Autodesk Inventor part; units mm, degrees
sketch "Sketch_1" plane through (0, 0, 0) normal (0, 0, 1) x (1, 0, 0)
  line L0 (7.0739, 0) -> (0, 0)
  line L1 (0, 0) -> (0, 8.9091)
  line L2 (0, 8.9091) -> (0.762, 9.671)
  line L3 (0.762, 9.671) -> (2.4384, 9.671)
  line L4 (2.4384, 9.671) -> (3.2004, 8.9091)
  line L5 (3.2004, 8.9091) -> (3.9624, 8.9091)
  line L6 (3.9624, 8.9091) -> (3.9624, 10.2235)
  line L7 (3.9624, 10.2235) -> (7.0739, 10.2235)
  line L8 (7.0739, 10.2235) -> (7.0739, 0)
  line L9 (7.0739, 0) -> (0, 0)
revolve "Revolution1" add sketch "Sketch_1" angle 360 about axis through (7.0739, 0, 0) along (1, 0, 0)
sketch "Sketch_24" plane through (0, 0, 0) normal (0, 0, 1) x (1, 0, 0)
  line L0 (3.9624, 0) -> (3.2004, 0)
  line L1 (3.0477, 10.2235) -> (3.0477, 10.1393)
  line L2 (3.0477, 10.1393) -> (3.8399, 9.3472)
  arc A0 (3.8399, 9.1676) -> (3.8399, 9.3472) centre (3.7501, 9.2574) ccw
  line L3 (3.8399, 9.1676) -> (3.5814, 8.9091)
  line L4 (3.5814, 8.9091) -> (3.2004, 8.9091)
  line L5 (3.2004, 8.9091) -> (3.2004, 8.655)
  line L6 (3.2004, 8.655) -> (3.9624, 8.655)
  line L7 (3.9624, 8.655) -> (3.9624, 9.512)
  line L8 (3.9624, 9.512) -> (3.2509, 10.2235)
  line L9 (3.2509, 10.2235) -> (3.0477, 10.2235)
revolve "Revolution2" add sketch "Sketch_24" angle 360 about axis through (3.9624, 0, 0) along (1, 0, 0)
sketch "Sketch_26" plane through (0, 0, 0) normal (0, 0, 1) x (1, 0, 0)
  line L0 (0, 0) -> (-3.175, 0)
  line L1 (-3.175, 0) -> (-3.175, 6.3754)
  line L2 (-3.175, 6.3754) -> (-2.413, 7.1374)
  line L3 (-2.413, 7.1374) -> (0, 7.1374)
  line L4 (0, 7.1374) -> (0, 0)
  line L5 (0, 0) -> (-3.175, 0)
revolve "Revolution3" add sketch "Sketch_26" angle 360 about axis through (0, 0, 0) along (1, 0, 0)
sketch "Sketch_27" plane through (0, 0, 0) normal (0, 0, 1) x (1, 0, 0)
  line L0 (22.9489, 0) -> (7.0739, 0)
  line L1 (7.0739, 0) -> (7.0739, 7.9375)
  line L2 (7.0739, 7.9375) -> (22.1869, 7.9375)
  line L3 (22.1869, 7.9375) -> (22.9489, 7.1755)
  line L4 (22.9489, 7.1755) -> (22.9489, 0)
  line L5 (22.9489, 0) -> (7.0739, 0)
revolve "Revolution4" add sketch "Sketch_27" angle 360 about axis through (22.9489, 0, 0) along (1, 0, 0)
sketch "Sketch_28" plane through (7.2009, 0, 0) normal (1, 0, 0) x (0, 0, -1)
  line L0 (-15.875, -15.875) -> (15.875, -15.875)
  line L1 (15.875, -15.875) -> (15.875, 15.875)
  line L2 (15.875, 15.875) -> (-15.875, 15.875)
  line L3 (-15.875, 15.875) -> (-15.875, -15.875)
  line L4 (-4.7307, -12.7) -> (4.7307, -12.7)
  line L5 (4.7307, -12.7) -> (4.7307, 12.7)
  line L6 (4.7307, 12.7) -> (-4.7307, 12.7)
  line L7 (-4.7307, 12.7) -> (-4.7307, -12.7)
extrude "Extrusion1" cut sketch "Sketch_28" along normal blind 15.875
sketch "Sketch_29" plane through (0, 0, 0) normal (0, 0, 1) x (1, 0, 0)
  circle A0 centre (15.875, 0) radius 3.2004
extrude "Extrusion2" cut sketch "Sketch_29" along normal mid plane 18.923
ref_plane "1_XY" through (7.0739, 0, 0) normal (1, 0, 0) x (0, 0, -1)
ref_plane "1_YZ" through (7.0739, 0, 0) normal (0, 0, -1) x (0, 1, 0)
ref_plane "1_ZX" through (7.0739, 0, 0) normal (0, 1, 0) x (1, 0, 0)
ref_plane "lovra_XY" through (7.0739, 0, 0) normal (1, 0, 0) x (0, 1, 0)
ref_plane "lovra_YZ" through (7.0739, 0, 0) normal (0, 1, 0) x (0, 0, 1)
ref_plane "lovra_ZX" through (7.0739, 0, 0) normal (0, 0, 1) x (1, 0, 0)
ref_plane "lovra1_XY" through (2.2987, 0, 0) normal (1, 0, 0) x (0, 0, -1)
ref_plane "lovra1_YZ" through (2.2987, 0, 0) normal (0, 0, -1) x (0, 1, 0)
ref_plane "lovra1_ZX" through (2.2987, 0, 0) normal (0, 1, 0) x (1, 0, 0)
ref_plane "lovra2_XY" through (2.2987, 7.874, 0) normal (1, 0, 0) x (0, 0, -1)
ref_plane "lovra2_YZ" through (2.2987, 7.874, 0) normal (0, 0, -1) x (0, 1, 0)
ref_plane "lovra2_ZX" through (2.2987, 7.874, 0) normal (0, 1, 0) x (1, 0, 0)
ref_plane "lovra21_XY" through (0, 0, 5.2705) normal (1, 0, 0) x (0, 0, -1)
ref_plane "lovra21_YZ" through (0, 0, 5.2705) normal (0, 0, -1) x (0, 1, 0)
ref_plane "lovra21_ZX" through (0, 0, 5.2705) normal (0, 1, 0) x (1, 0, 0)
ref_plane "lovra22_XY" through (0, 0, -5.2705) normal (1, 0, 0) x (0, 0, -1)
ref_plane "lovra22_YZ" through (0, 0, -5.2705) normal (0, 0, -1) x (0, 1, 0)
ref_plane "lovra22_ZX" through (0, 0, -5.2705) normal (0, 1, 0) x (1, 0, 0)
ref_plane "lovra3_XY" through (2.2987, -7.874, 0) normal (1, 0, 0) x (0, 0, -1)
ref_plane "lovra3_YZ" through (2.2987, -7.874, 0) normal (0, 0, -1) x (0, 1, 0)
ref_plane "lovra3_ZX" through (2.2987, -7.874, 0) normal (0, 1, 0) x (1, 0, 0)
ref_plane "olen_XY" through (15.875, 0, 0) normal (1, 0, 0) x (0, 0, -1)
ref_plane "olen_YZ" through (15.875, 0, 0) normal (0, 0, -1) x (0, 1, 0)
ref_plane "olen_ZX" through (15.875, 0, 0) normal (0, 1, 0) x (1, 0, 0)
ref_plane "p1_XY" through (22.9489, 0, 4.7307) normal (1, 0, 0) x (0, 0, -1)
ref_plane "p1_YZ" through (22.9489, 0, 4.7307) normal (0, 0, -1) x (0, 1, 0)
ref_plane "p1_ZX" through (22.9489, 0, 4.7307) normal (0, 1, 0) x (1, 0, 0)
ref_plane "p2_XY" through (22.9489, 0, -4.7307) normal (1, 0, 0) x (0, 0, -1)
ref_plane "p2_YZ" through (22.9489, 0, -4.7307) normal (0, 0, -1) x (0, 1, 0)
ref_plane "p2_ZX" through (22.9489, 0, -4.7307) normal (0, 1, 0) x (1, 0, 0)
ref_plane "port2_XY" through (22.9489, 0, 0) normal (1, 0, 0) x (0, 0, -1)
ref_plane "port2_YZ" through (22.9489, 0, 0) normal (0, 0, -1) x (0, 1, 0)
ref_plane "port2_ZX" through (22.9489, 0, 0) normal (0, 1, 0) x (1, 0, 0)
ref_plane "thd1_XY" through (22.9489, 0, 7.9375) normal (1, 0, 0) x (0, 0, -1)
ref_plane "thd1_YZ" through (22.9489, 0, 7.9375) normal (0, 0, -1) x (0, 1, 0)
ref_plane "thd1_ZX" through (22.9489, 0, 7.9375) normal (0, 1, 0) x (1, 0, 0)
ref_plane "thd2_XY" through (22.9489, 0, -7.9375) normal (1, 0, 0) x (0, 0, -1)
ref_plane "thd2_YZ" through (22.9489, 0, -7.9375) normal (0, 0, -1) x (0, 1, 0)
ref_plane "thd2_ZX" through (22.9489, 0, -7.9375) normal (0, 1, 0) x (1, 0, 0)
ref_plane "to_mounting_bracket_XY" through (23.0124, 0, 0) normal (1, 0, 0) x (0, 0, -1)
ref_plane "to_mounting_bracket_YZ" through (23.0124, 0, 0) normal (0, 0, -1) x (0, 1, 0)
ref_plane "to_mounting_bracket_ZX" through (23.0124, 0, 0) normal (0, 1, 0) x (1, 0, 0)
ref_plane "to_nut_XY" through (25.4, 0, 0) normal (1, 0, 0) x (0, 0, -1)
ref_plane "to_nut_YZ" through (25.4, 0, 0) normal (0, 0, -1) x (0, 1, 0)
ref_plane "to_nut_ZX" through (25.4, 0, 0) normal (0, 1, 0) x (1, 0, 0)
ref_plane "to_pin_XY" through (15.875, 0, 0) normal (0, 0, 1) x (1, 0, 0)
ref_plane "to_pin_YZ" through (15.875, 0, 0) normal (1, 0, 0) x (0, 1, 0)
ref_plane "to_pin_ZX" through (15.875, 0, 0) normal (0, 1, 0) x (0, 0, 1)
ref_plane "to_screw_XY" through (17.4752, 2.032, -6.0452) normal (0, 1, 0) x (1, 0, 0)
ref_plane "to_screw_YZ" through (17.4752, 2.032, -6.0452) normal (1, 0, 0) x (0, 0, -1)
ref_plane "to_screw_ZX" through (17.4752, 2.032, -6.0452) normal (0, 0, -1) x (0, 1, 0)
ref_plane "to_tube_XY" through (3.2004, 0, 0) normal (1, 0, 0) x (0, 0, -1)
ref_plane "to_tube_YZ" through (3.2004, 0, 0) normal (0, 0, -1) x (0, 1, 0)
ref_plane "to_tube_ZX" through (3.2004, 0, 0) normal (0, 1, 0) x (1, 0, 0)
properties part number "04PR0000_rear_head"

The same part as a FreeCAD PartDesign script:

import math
import FreeCAD as App
import Part
import Sketcher

V = App.Vector
Q = App.Units.Quantity

doc = App.newDocument("Part")
body = doc.addObject("PartDesign::Body", "Body")

# Sketch on XY plane
sketch1 = body.newObject("Sketcher::SketchObject", "Sketch")
sketch1.AttachmentSupport = (doc.getObject("XY_Plane"), [""])
sketch1.MapMode = "FlatFace"
sketch1.addGeometry([
    Part.LineSegment(V(0, 0, 0), V(7.1, 0, 0)),  # 0
    Part.LineSegment(V(7.1, 0, 0), V(7.1, 10.2, 0)),  # 1
    Part.LineSegment(V(7.1, 10.2, 0), V(4, 10.2, 0)),  # 2
    Part.LineSegment(V(4, 10.2, 0), V(4, 8.9, 0)),  # 3
    Part.LineSegment(V(4, 8.9, 0), V(3.2, 8.9, 0)),  # 4
    Part.LineSegment(V(3.2, 8.9, 0), V(2.4, 9.7, 0)),  # 5
    Part.LineSegment(V(2.4, 9.7, 0), V(0.8, 9.7, 0)),  # 6
    Part.LineSegment(V(0.8, 9.7, 0), V(0, 8.9, 0)),  # 7
    Part.LineSegment(V(0, 8.9, 0), V(0, 0, 0)),  # 8
], False)
sketch1.addConstraint([
    Sketcher.Constraint("Coincident", 0, 2, 1, 1),
    Sketcher.Constraint("Coincident", 1, 2, 2, 1),
    Sketcher.Constraint("Coincident", 2, 2, 3, 1),
    Sketcher.Constraint("Coincident", 3, 2, 4, 1),
    Sketcher.Constraint("Coincident", 4, 2, 5, 1),
    Sketcher.Constraint("Coincident", 5, 2, 6, 1),
    Sketcher.Constraint("Coincident", 6, 2, 7, 1),
    Sketcher.Constraint("Coincident", 7, 2, 8, 1),
    Sketcher.Constraint("Coincident", 8, 2, 0, 1),
    Sketcher.Constraint("Horizontal", 0),
    Sketcher.Constraint("Vertical", 1),
    Sketcher.Constraint("Horizontal", 2),
    Sketcher.Constraint("Vertical", 3),
    Sketcher.Constraint("Horizontal", 4),
    Sketcher.Constraint("Horizontal", 6),
    Sketcher.Constraint("Vertical", 8),
    Sketcher.Constraint("Coincident", 8, 2, -1, 1),
    Sketcher.Constraint("Perpendicular", 5, 7),
    Sketcher.Constraint("Horizontal", 4, 2, 7, 2),
    Sketcher.Constraint("Equal", 5, 7),
    Sketcher.Constraint("DistanceX", 4, 2, 4, 1, Q("0.03 in")),
    Sketcher.Constraint("DistanceX", 6, 2, 6, 1, Q("0.066 in")),
    Sketcher.Constraint("DistanceX", -1, 1, 6, 2, Q("0.03 in")),
    Sketcher.Constraint("DistanceX", 0, 1, 0, 2, Q("0.2785 in")),
    Sketcher.Constraint("DistanceY", 1, 1, 1, 2, Q("0.4025 in")),
    Sketcher.Constraint("DistanceY", 3, 2, 3, 1, Q("1.3144 mm")),
])
revolution = body.newObject("PartDesign::Revolution", "Revolution")
revolution.Profile = sketch1
revolution.ReferenceAxis = (sketch1, ["H_Axis"])
revolution.Angle = 360

# Sketch on XY plane
sketch2 = body.newObject("Sketcher::SketchObject", "Sketch001")
sketch2.AttachmentSupport = (doc.getObject("XY_Plane"), [""])
sketch2.MapMode = "FlatFace"
sketch2.addGeometry([
    Part.LineSegment(V(3.25, 10.22, 0), V(3.05, 10.22, 0)),  # 0
    Part.LineSegment(V(3.05, 10.22, 0), V(3.05, 10.14, 0)),  # 1
    Part.LineSegment(V(3.05, 10.14, 0), V(3.84, 9.35, 0)),  # 2
    Part.ArcOfCircle(Part.Circle(V(3.75, 9.26, 0), V(0, 0, 1), 0.13), math.radians(-45), math.radians(45)),  # 3
    Part.LineSegment(V(3.84, 9.17, 0), V(3.58, 8.91, 0)),  # 4
    Part.LineSegment(V(3.58, 8.91, 0), V(3.2, 8.91, 0)),  # 5
    Part.LineSegment(V(3.2, 8.91, 0), V(3.2, 8.65, 0)),  # 6
    Part.LineSegment(V(3.2, 8.65, 0), V(3.96, 8.65, 0)),  # 7
    Part.LineSegment(V(3.96, 8.65, 0), V(3.96, 9.51, 0)),  # 8
    Part.LineSegment(V(3.96, 9.51, 0), V(3.25, 10.22, 0)),  # 9
], False)
sketch2.addConstraint([
    Sketcher.Constraint("Coincident", 0, 2, 1, 1),
    Sketcher.Constraint("Coincident", 1, 2, 2, 1),
    Sketcher.Constraint("Tangent", 2, 2, 3, 2),
    Sketcher.Constraint("Tangent", 3, 1, 4, 1),
    Sketcher.Constraint("Coincident", 4, 2, 5, 1),
    Sketcher.Constraint("Coincident", 5, 2, 6, 1),
    Sketcher.Constraint("Coincident", 6, 2, 7, 1),
    Sketcher.Constraint("Coincident", 7, 2, 8, 1),
    Sketcher.Constraint("Coincident", 8, 2, 9, 1),
    Sketcher.Constraint("Coincident", 9, 2, 0, 1),
    Sketcher.Constraint("Horizontal", 0),
    Sketcher.Constraint("Vertical", 1),
    Sketcher.Constraint("Horizontal", 5),
    Sketcher.Constraint("Vertical", 6),
    Sketcher.Constraint("Horizontal", 7),
    Sketcher.Constraint("Vertical", 8),
    Sketcher.Constraint("Perpendicular", 2, 4),
    Sketcher.Constraint("Perpendicular", 4, 9),
    Sketcher.Constraint("Vertical", 2, 2, 3, 1),
    Sketcher.Constraint("Radius", 3, Q("0.005 in")),
    Sketcher.Constraint("DistanceX", 7, 1, 7, 2, Q("0.03 in")),
    Sketcher.Constraint("DistanceY", 6, 2, 6, 1, Q("0.01 in")),
    Sketcher.Constraint("DistanceX", 0, 2, 0, 1, Q("0.008 in")),
    Sketcher.Constraint("DistanceX", 5, 2, 5, 1, Q("0.015 in")),
    Sketcher.Constraint("DistanceX", -1, 1, 0, 2, Q("0.12 in")),
    Sketcher.Constraint("DistanceY", -1, 1, 2, 2, Q("0.368 in")),
    Sketcher.Constraint("DistanceX", -1, 1, 4, 2, Q("0.141 in")),
    Sketcher.Constraint("Distance", 2, Q("0.0441 in")),
    Sketcher.Constraint("DistanceY", 1, 2, 1, 1, Q("0.0842 mm")),
])
revolution2 = body.newObject("PartDesign::Revolution", "Revolution001")
revolution2.Profile = sketch2
revolution2.ReferenceAxis = (sketch2, ["H_Axis"])
revolution2.Angle = 360

# Sketch on XY plane
sketch3 = body.newObject("Sketcher::SketchObject", "Sketch002")
sketch3.AttachmentSupport = (doc.getObject("XY_Plane"), [""])
sketch3.MapMode = "FlatFace"
sketch3.addGeometry([
    Part.LineSegment(V(-3.2, 0, 0), V(0, 0, 0)),  # 0
    Part.LineSegment(V(0, 0, 0), V(0, 7.1, 0)),  # 1
    Part.LineSegment(V(0, 7.1, 0), V(-2.4, 7.1, 0)),  # 2
    Part.LineSegment(V(-2.4, 7.1, 0), V(-3.2, 6.4, 0)),  # 3
    Part.LineSegment(V(-3.2, 6.4, 0), V(-3.2, 0, 0)),  # 4
], False)
sketch3.addConstraint([
    Sketcher.Constraint("Coincident", 0, 2, 1, 1),
    Sketcher.Constraint("Coincident", 1, 2, 2, 1),
    Sketcher.Constraint("Coincident", 2, 2, 3, 1),
    Sketcher.Constraint("Coincident", 3, 2, 4, 1),
    Sketcher.Constraint("Coincident", 4, 2, 0, 1),
    Sketcher.Constraint("Horizontal", 0),
    Sketcher.Constraint("Vertical", 1),
    Sketcher.Constraint("Horizontal", 2),
    Sketcher.Constraint("Vertical", 4),
    Sketcher.Constraint("Coincident", 0, 2, -1, 1),
    Sketcher.Constraint("Angle", 3, Q("-135 deg")),
    Sketcher.Constraint("DistanceX", 0, 1, 0, 2, Q("0.125 in")),
    Sketcher.Constraint("DistanceX", 2, 2, 2, 1, Q("0.095 in")),
    Sketcher.Constraint("DistanceY", 1, 1, 1, 2, Q("0.281 in")),
])
revolution3 = body.newObject("PartDesign::Revolution", "Revolution002")
revolution3.Profile = sketch3
revolution3.ReferenceAxis = (sketch3, ["H_Axis"])
revolution3.Angle = 360

# Sketch on XY plane
sketch4 = body.newObject("Sketcher::SketchObject", "Sketch003")
sketch4.AttachmentSupport = (doc.getObject("XY_Plane"), [""])
sketch4.MapMode = "FlatFace"
sketch4.addGeometry([
    Part.LineSegment(V(7.1, 0, 0), V(22.9, 0, 0)),  # 0
    Part.LineSegment(V(22.9, 0, 0), V(22.9, 7.2, 0)),  # 1
    Part.LineSegment(V(22.9, 7.2, 0), V(22.2, 7.9, 0)),  # 2
    Part.LineSegment(V(22.2, 7.9, 0), V(7.1, 7.9, 0)),  # 3
    Part.LineSegment(V(7.1, 7.9, 0), V(7.1, 0, 0)),  # 4
], False)
sketch4.addConstraint([
    Sketcher.Constraint("Coincident", 0, 2, 1, 1),
    Sketcher.Constraint("Coincident", 1, 2, 2, 1),
    Sketcher.Constraint("Coincident", 2, 2, 3, 1),
    Sketcher.Constraint("Coincident", 3, 2, 4, 1),
    Sketcher.Constraint("Coincident", 4, 2, 0, 1),
    Sketcher.Constraint("Horizontal", 0),
    Sketcher.Constraint("Vertical", 1),
    Sketcher.Constraint("Horizontal", 3),
    Sketcher.Constraint("Vertical", 4),
    Sketcher.Constraint("PointOnObject", 0, 2, -1),
    Sketcher.Constraint("Angle", 2, Q("135 deg")),
    Sketcher.Constraint("DistanceX", 0, 1, 0, 2, Q("0.625 in")),
    Sketcher.Constraint("DistanceX", 3, 2, 3, 1, Q("0.595 in")),
    Sketcher.Constraint("DistanceY", 4, 2, 4, 1, Q("0.3125 in")),
    Sketcher.Constraint("DistanceX", -1, 1, 0, 2, Q("0.9035 in")),
])
revolution4 = body.newObject("PartDesign::Revolution", "Revolution003")
revolution4.Profile = sketch4
revolution4.ReferenceAxis = (sketch4, ["H_Axis"])
revolution4.Angle = 360

# Sketch on YZ plane
sketch5 = body.newObject("Sketcher::SketchObject", "Sketch004")
sketch5.AttachmentSupport = (doc.getObject("YZ_Plane"), [""])
sketch5.MapMode = "FlatFace"
sketch5.AttachmentOffset = App.Placement(V(0, 0, 0.2835 * 25.4), App.Rotation())
sketch5.addGeometry([
    Part.LineSegment(V(16, 16, 0), V(-16, 16, 0)),  # 0
    Part.LineSegment(V(-16, 16, 0), V(-16, -16, 0)),  # 1
    Part.LineSegment(V(-16, -16, 0), V(16, -16, 0)),  # 2
    Part.LineSegment(V(16, -16, 0), V(16, 16, 0)),  # 3
    Part.LineSegment(V(-13, -5, 0), V(-13, 5, 0)),  # 4
    Part.LineSegment(V(-13, 5, 0), V(13, 5, 0)),  # 5
    Part.LineSegment(V(13, 5, 0), V(13, -5, 0)),  # 6
    Part.LineSegment(V(13, -5, 0), V(-13, -5, 0)),  # 7
], False)
sketch5.addConstraint([
    Sketcher.Constraint("Coincident", 0, 2, 1, 1),
    Sketcher.Constraint("Coincident", 1, 2, 2, 1),
    Sketcher.Constraint("Coincident", 2, 2, 3, 1),
    Sketcher.Constraint("Coincident", 3, 2, 0, 1),
    Sketcher.Constraint("Coincident", 4, 2, 5, 1),
    Sketcher.Constraint("Coincident", 5, 2, 6, 1),
    Sketcher.Constraint("Coincident", 6, 2, 7, 1),
    Sketcher.Constraint("Coincident", 7, 2, 4, 1),
    Sketcher.Constraint("Horizontal", 0),
    Sketcher.Constraint("Vertical", 1),
    Sketcher.Constraint("Horizontal", 2),
    Sketcher.Constraint("Vertical", 3),
    Sketcher.Constraint("Vertical", 4),
    Sketcher.Constraint("Horizontal", 5),
    Sketcher.Constraint("Vertical", 6),
    Sketcher.Constraint("Horizontal", 7),
    Sketcher.Constraint("Symmetric", 0, 2, 2, 2, -1, 1),
    Sketcher.Constraint("Symmetric", 4, 2, 6, 2, -1, 1),
    Sketcher.Constraint("Equal", 2, 1),
    Sketcher.Constraint("DistanceX", 5, 1, 5, 2, Q("1 in")),
    Sketcher.Constraint("DistanceX", 0, 2, 0, 1, Q("1.25 in")),
    Sketcher.Constraint("DistanceY", 4, 1, 4, 2, Q("0.3725 in")),
])
pocket1 = body.newObject("PartDesign::Pocket", "Pocket")
pocket1.Profile = sketch5
pocket1.Length = Q("0.625 in")
pocket1.Reversed = True

# Sketch on XY plane
sketch6 = body.newObject("Sketcher::SketchObject", "Sketch005")
sketch6.AttachmentSupport = (doc.getObject("XY_Plane"), [""])
sketch6.MapMode = "FlatFace"
sketch6.addGeometry(Part.Circle(V(15.9, 0, 0), V(0, 0, 1), 3.2), False)
sketch6.addConstraint([
    Sketcher.Constraint("PointOnObject", 0, 3, -1),
    Sketcher.Constraint("Diameter", 0, Q("0.252 in")),
    Sketcher.Constraint("DistanceX", -1, 1, 0, 3, Q("0.625 in")),
])
pocket2 = body.newObject("PartDesign::Pocket", "Pocket001")
pocket2.Profile = sketch6
pocket2.Length = Q("0.745 in")
pocket2.Midplane = True

doc.recompute()
